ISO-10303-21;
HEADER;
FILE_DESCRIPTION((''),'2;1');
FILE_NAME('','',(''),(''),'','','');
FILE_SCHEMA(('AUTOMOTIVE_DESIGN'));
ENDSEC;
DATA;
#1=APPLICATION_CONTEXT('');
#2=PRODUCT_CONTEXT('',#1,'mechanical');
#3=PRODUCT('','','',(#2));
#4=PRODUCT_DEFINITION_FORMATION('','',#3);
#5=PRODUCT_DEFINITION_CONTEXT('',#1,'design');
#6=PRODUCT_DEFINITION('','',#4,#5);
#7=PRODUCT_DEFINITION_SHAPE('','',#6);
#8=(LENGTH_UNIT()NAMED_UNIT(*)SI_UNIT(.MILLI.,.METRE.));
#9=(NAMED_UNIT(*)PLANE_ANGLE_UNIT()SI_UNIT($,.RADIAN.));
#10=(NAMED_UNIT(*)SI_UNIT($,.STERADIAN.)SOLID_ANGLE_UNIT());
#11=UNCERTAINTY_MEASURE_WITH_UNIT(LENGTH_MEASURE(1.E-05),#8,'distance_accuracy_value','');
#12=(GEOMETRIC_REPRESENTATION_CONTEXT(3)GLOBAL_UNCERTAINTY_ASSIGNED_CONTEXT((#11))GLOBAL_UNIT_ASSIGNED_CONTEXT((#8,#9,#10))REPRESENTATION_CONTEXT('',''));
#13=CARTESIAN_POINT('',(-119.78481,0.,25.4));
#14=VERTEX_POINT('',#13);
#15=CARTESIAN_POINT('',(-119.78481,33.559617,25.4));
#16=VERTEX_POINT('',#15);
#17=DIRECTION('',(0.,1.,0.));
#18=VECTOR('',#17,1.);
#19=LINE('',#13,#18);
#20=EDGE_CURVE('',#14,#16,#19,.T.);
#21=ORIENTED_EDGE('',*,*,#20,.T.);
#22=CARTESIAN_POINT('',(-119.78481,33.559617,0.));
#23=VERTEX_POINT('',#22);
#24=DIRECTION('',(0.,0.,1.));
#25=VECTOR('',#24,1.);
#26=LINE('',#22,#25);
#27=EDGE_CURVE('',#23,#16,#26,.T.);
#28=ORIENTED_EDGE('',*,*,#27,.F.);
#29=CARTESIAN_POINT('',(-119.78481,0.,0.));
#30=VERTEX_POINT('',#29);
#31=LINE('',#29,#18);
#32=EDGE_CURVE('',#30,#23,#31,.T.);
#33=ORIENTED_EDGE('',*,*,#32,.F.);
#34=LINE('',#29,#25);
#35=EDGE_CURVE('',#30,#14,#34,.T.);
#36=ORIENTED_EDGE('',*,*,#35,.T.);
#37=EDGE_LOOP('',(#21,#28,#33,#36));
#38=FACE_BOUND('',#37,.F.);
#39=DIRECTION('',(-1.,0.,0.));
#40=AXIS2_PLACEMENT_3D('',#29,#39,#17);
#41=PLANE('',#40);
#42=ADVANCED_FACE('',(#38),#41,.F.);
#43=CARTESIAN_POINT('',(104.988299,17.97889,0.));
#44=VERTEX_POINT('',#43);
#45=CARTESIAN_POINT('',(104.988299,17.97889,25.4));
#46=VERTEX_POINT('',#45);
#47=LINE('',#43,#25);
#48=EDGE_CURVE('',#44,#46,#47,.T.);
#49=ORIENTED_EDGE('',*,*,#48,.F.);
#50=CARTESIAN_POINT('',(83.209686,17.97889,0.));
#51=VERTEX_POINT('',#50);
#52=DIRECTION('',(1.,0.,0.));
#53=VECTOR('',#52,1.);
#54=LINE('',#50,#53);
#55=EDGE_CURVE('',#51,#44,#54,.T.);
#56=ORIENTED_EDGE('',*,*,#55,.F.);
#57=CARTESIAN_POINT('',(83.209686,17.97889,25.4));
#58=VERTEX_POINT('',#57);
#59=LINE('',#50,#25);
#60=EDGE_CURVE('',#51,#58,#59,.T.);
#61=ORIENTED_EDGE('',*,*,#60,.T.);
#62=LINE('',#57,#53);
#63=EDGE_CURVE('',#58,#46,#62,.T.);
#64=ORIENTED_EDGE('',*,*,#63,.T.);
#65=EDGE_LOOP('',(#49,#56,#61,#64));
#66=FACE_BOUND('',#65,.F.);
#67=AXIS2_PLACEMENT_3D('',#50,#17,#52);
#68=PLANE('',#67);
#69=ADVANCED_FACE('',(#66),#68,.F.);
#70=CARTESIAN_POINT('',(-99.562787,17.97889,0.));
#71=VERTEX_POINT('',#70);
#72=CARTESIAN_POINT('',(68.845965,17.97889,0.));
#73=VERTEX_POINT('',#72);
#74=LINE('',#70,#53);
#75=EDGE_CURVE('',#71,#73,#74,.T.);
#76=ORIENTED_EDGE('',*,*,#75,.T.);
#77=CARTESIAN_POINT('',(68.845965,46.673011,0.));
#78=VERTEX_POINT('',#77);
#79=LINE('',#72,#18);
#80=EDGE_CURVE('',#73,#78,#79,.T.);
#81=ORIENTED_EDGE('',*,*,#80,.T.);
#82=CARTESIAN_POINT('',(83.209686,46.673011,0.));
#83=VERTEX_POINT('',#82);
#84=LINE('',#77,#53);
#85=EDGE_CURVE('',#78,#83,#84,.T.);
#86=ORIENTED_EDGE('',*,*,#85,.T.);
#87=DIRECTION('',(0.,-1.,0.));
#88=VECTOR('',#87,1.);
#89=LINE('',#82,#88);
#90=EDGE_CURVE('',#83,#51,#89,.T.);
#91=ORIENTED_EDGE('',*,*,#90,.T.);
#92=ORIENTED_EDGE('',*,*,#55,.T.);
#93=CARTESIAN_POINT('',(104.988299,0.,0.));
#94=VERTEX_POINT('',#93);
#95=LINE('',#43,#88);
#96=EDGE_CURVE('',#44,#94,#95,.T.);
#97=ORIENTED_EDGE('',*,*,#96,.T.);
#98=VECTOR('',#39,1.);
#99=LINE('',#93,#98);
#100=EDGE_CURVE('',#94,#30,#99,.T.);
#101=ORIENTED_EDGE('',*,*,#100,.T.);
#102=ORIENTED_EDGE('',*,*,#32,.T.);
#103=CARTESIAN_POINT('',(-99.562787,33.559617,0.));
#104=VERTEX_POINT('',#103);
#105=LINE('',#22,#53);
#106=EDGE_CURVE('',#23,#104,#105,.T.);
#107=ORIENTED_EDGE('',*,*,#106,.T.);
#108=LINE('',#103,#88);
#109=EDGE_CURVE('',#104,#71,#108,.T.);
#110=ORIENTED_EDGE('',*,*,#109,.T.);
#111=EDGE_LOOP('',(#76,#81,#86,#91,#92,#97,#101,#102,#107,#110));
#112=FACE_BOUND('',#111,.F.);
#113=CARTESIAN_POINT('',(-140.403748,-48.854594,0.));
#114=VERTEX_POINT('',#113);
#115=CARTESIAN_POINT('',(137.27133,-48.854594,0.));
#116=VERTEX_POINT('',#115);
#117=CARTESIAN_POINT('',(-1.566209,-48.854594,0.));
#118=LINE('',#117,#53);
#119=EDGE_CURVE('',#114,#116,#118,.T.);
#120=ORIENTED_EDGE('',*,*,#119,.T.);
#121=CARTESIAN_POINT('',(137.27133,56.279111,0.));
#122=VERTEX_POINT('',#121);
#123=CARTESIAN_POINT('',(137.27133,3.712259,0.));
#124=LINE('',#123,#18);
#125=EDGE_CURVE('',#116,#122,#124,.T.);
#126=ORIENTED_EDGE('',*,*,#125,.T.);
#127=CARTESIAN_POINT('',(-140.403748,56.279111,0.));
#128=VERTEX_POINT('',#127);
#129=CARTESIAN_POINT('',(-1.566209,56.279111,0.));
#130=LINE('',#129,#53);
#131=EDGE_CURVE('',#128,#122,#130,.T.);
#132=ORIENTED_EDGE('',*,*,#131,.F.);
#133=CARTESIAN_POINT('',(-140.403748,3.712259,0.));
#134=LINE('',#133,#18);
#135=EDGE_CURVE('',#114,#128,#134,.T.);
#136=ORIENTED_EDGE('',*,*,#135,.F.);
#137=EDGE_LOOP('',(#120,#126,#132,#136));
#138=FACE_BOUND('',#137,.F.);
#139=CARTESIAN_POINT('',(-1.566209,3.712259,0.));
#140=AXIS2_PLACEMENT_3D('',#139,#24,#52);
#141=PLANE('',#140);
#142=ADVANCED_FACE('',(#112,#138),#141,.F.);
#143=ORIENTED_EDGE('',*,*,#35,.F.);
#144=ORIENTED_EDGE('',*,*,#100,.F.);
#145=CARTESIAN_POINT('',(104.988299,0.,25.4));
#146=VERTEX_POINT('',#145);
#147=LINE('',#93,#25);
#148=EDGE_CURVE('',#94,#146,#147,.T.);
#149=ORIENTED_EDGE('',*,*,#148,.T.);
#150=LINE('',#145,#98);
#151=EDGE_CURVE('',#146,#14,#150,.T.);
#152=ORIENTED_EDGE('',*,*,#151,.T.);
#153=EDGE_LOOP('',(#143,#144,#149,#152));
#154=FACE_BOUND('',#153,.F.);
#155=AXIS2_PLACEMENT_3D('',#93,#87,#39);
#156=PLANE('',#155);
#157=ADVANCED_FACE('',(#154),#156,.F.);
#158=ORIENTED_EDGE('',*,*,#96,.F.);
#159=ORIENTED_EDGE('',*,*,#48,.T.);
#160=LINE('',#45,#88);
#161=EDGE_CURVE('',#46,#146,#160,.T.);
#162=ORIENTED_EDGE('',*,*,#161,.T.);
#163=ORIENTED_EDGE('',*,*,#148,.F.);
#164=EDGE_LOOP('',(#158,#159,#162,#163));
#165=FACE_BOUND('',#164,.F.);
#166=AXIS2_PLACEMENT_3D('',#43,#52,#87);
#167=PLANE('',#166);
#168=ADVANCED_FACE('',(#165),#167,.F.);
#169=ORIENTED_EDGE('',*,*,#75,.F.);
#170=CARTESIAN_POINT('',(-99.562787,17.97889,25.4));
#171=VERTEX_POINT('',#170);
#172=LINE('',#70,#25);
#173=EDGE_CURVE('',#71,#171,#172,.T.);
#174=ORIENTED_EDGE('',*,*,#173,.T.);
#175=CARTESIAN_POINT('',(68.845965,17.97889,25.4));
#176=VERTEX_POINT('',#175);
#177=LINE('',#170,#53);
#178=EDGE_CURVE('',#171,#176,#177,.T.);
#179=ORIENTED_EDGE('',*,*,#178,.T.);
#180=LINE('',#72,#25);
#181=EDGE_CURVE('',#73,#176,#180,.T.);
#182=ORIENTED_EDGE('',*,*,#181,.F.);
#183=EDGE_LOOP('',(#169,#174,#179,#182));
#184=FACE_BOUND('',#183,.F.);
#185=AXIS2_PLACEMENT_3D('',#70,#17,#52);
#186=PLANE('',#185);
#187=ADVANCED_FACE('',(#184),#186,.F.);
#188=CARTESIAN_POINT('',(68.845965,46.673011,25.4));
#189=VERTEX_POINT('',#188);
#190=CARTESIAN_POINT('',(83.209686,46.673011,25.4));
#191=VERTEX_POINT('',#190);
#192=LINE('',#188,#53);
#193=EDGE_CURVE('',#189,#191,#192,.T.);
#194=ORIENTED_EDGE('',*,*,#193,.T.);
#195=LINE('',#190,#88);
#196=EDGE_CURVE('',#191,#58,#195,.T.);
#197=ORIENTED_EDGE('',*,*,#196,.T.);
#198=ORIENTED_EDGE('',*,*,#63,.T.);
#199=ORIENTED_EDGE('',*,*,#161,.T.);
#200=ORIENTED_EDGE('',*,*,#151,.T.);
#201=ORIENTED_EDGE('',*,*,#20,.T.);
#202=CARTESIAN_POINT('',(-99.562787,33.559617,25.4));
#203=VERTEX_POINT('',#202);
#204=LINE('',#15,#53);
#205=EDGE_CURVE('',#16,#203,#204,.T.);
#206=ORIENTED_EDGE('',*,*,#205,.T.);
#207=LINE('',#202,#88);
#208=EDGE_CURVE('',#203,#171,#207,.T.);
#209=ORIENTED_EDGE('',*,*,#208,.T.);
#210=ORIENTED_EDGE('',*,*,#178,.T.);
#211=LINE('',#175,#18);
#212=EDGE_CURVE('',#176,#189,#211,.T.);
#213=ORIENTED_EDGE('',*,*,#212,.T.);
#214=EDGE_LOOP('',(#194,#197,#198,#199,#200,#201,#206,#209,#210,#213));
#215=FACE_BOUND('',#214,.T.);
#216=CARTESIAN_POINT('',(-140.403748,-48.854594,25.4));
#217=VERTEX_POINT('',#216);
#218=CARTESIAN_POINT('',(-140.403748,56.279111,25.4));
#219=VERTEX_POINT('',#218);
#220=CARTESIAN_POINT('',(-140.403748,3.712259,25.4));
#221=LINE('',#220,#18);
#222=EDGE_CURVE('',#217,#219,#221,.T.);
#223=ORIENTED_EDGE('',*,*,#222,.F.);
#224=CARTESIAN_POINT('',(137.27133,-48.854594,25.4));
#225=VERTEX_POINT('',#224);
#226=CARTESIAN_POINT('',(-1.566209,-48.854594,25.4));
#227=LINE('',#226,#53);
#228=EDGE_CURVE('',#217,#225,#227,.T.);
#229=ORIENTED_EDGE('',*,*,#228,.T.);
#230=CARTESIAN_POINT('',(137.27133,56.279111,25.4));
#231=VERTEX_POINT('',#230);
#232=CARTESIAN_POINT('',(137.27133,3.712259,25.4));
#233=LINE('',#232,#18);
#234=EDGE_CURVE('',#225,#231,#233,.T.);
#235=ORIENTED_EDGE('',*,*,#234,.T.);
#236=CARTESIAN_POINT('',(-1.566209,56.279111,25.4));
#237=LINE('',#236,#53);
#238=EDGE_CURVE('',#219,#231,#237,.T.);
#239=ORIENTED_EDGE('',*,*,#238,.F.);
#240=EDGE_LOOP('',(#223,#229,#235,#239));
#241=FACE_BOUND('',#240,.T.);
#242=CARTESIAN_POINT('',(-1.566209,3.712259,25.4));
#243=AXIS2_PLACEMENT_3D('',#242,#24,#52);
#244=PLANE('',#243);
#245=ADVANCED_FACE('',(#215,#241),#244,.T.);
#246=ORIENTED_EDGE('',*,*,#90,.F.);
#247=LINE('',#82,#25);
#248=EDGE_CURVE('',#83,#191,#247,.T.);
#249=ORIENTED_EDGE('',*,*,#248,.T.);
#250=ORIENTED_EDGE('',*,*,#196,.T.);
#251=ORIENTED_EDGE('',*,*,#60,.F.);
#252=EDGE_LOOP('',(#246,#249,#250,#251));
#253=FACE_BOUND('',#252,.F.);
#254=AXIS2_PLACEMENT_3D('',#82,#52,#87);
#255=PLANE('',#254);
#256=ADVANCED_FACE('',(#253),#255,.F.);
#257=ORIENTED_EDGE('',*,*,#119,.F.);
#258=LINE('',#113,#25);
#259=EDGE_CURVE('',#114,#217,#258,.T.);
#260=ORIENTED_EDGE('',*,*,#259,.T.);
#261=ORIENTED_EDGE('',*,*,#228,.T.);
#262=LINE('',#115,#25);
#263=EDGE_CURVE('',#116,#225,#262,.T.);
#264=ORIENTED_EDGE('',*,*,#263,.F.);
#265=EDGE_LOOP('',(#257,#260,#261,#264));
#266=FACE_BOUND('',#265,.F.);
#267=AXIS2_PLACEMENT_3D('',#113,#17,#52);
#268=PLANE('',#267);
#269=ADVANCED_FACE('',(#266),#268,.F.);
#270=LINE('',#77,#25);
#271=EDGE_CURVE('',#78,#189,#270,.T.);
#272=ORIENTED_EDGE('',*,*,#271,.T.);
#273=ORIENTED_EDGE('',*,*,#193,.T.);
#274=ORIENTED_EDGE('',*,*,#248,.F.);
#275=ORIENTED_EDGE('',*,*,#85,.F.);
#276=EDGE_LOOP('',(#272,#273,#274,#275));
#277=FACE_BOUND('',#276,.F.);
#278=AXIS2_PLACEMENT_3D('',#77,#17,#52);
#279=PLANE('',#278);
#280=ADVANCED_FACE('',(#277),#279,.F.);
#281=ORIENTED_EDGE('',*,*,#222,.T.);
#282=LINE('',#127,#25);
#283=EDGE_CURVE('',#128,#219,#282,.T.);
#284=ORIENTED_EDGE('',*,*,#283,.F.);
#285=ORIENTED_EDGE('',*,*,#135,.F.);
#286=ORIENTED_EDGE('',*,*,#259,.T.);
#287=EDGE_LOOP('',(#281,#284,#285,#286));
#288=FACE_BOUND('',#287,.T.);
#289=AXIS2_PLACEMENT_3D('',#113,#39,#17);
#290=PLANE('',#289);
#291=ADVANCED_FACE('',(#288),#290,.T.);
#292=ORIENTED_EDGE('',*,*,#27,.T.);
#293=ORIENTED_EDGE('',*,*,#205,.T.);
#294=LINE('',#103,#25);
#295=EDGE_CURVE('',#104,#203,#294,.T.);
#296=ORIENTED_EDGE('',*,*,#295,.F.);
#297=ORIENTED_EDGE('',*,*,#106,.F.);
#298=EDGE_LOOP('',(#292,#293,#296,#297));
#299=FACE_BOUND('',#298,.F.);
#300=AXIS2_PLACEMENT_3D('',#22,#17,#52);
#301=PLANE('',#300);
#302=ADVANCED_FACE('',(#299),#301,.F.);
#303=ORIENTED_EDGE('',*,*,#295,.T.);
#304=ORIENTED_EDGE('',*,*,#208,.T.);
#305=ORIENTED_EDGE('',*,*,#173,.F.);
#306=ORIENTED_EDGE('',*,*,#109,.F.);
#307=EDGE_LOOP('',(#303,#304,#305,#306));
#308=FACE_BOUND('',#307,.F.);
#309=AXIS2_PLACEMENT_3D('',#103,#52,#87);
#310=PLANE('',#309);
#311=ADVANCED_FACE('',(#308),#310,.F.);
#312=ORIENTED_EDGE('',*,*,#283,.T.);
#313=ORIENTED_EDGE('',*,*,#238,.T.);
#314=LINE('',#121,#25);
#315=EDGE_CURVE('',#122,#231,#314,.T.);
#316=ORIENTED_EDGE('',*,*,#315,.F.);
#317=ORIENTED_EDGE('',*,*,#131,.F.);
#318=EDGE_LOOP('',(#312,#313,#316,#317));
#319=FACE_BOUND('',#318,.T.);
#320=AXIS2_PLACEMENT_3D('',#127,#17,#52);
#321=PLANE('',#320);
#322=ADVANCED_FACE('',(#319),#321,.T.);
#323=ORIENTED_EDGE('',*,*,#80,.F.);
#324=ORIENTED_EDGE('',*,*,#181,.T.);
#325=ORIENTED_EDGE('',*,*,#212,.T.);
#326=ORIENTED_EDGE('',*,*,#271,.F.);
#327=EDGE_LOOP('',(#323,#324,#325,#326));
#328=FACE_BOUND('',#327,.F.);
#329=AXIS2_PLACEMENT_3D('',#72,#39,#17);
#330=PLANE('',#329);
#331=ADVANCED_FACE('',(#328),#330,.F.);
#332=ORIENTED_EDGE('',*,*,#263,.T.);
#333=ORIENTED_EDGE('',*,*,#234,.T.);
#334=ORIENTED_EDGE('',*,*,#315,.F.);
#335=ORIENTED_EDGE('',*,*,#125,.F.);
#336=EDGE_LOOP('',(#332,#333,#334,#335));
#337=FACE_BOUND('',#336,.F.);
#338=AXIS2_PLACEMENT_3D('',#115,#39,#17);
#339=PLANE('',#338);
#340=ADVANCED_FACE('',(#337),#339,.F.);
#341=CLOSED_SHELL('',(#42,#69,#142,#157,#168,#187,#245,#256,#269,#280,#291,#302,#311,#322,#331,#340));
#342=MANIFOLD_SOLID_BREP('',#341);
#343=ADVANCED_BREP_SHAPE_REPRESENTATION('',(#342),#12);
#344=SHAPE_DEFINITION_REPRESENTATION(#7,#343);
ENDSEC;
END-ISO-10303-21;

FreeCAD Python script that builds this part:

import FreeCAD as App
import Part
import Sketcher
Q = App.Units.Quantity


def add_polygon(sketch, points):
    """Adds a closed chain of lines whose ends are joined by coincident constraints."""
    first, n = sketch.GeometryCount, len(points)
    for a, b in zip(points, points[1:] + points[:1]):
        sketch.addGeometry(Part.LineSegment(App.Vector(*a, 0), App.Vector(*b, 0)), False)
    for i in range(n):
        sketch.addConstraint(Sketcher.Constraint("Coincident", first + i, 2, first + (i + 1) % n, 1))

doc = App.newDocument("Part")
body = doc.addObject("PartDesign::Body", "Body")

# Sketch on XY plane
sketch1 = doc.addObject("Sketcher::SketchObject", "Sketch")
body.addObject(sketch1)
sketch1.AttachmentSupport = (doc.XY_Plane, [""])
sketch1.MapMode = "FlatFace"
add_polygon(sketch1, [(-140, 56), (-140, -49), (137, -49), (137, 56)])  # lines 0-3
add_polygon(sketch1, [(105, 18), (105, 0), (-120, 0), (-120, 34), (-100, 34), (-100, 18), (69, 18), (69, 47), (83, 47), (83, 18)])  # lines 4-13
sketch1.addConstraint([
    Sketcher.Constraint("Vertical", 0),
    Sketcher.Constraint("Horizontal", 1),
    Sketcher.Constraint("Vertical", 2),
    Sketcher.Constraint("Horizontal", 3),
    Sketcher.Constraint("Vertical", 4),
    Sketcher.Constraint("Horizontal", 5),
    Sketcher.Constraint("Vertical", 6),
    Sketcher.Constraint("Horizontal", 7),
    Sketcher.Constraint("Vertical", 8),
    Sketcher.Constraint("Horizontal", 9),
    Sketcher.Constraint("Vertical", 10),
    Sketcher.Constraint("Horizontal", 11),
    Sketcher.Constraint("Vertical", 12),
    Sketcher.Constraint("Horizontal", 13),
    Sketcher.Constraint("PointOnObject", 4, 2, -1),
    Sketcher.Constraint("Horizontal", 9, 2, 12, 2),
    Sketcher.Constraint("DistanceX", 1, 1, 1, 2, Q("277.675078 mm")),
    Sketcher.Constraint("DistanceX", 5, 2, 5, 1, Q("224.773109 mm")),
    Sketcher.Constraint("DistanceX", 9, 1, 9, 2, Q("168.408752 mm")),
    Sketcher.Constraint("DistanceX", 11, 1, 11, 2, Q("14.363721 mm")),
    Sketcher.Constraint("DistanceY", 4, 2, 4, 1, Q("17.97889 mm")),
    Sketcher.Constraint("DistanceY", 10, 1, 10, 2, Q("28.694121 mm")),
    Sketcher.Constraint("DistanceX", -1, 1, 4, 2, Q("104.988299 mm")),
    Sketcher.Constraint("DistanceY", 10, 2, 2, 2, Q("9.6061 mm")),
    Sketcher.Constraint("DistanceX", 7, 1, 7, 2, Q("20.222023 mm")),
    Sketcher.Constraint("DistanceY", 0, 2, 0, 1, Q("105.133705 mm")),
    Sketcher.Constraint("DistanceY", 6, 1, 6, 2, Q("33.559617 mm")),
    Sketcher.Constraint("DistanceX", 0, 2, -1, 1, Q("140.403748 mm")),
])
pad1 = doc.addObject("PartDesign::Pad", "Pad")
body.addObject(pad1)
pad1.Profile = sketch1
pad1.Length = Q("1 in")

doc.recompute()
